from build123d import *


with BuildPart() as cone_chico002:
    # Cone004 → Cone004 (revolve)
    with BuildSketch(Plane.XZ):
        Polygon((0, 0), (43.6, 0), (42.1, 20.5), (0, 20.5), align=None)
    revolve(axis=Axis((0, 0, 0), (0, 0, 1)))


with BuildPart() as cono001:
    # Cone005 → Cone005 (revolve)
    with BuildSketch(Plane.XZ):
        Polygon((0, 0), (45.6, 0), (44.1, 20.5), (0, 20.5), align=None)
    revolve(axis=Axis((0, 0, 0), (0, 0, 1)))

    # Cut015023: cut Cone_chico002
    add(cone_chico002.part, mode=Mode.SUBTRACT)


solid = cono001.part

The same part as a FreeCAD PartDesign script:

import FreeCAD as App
import Part
import Sketcher
from FreeCAD import Vector


def add_polygon(sketch, points):
    """Adds a closed chain of lines whose ends are joined by coincident constraints."""
    first, n = sketch.GeometryCount, len(points)
    for a, b in zip(points, points[1:] + points[:1]):
        sketch.addGeometry(Part.LineSegment(App.Vector(*a, 0), App.Vector(*b, 0)), False)
    for i in range(n):
        sketch.addConstraint(Sketcher.Constraint("Coincident", first + i, 2, first + (i + 1) % n, 1))

doc = App.newDocument("Part")
body = doc.addObject("PartDesign::Body", "Body")

# Sketch on XZ plane
sketch1 = body.newObject("Sketcher::SketchObject", "Sketch")
sketch1.AttachmentSupport = (doc.getObject("XZ_Plane"), [""])
sketch1.MapMode = "FlatFace"
add_polygon(sketch1, [(0, 0), (44, 0), (42, 20), (0, 20)])  # lines 0-3
sketch1.addConstraint([
    Sketcher.Constraint("Horizontal", 0),
    Sketcher.Constraint("Horizontal", 2),
    Sketcher.Constraint("Vertical", 3),
    Sketcher.Constraint("Coincident", 3, 2, -1, 1),
    Sketcher.Constraint("DistanceX", 0, 1, 0, 2, 43.6),
    Sketcher.Constraint("DistanceX", 2, 2, 2, 1, 42.1),
    Sketcher.Constraint("DistanceY", 3, 2, 3, 1, 20.5),
])
revolution = body.newObject("PartDesign::Revolution", "Revolution")
revolution.Profile = sketch1
revolution.ReferenceAxis = (sketch1, ["V_Axis"])
revolution.Angle = 360
body2 = doc.addObject("PartDesign::Body", "Body001")

# Sketch on XZ plane
sketch2 = body2.newObject("Sketcher::SketchObject", "Sketch001")
sketch2.AttachmentSupport = (doc.getObject("XZ_Plane001"), [""])
sketch2.MapMode = "FlatFace"
add_polygon(sketch2, [(0, 0), (46, 0), (44, 20), (0, 20)])  # lines 0-3
sketch2.addConstraint([
    Sketcher.Constraint("Horizontal", 0),
    Sketcher.Constraint("Horizontal", 2),
    Sketcher.Constraint("Vertical", 3),
    Sketcher.Constraint("Coincident", 3, 2, -1, 1),
    Sketcher.Constraint("DistanceX", 0, 1, 0, 2, 45.6),
    Sketcher.Constraint("DistanceX", 2, 2, 2, 1, 44.1),
    Sketcher.Constraint("DistanceY", 3, 2, 3, 1, 20.5),
])
revolution2 = body2.newObject("PartDesign::Revolution", "Revolution001")
revolution2.Profile = sketch2
revolution2.ReferenceAxis = (sketch2, ["V_Axis"])
revolution2.Angle = 360
doc.recompute()

boolean = body2.newObject("PartDesign::Boolean", "Boolean")
boolean.Type = "Cut"
boolean.addObjects([body])

doc.recompute()
